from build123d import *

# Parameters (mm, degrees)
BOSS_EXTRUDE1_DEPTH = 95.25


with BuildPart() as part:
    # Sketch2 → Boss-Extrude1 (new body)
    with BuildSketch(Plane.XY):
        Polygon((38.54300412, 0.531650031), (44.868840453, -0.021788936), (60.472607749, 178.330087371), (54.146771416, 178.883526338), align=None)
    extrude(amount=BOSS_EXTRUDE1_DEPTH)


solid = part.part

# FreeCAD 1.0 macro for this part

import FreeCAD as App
import Part
import Sketcher
from FreeCAD import Vector
Q = App.Units.Quantity

doc = App.newDocument("Part")
body = doc.addObject("PartDesign::Body", "Body")

# Sketch on XY plane
sketch1 = body.newObject("Sketcher::SketchObject", "Sketch")
sketch1.AttachmentSupport = (doc.getObject("XY_Plane"), [""])
sketch1.MapMode = "FlatFace"
sketch1.addGeometry([
    Part.LineSegment(Vector(38.543004, 0.53165, 0), Vector(44.86884, -0.021789, 0)),
    Part.LineSegment(Vector(44.86884, -0.021789, 0), Vector(60.472608, 178.330087, 0)),
    Part.LineSegment(Vector(60.472608, 178.330087, 0), Vector(54.146771, 178.883526, 0)),
    Part.LineSegment(Vector(54.146771, 178.883526, 0), Vector(38.543004, 0.53165, 0)),
], False)
sketch1.addConstraint([
    Sketcher.Constraint("Coincident", 0, 2, 1, 1),
    Sketcher.Constraint("Coincident", 1, 2, 2, 1),
    Sketcher.Constraint("Coincident", 2, 2, 3, 1),
    Sketcher.Constraint("Coincident", 3, 2, 0, 1),
    Sketcher.Constraint("Perpendicular", 0, 1),
    Sketcher.Constraint("Perpendicular", 1, 2),
    Sketcher.Constraint("Perpendicular", 2, 3),
    Sketcher.Constraint("Angle", 0, Q("-5 deg")),
    Sketcher.Constraint("Distance", 0, Q("0.25 in")),
    Sketcher.Constraint("Distance", 1, 179.033152),
    Sketcher.Constraint("DistanceX", -1, 1, 0, 2, 44.86884),
    Sketcher.Constraint("DistanceY", 0, 2, -1, 1, 0.021789),
])
pad1 = body.newObject("PartDesign::Pad", "Pad")
pad1.Profile = sketch1
pad1.Length = Q("3.75 in")

doc.recompute()
